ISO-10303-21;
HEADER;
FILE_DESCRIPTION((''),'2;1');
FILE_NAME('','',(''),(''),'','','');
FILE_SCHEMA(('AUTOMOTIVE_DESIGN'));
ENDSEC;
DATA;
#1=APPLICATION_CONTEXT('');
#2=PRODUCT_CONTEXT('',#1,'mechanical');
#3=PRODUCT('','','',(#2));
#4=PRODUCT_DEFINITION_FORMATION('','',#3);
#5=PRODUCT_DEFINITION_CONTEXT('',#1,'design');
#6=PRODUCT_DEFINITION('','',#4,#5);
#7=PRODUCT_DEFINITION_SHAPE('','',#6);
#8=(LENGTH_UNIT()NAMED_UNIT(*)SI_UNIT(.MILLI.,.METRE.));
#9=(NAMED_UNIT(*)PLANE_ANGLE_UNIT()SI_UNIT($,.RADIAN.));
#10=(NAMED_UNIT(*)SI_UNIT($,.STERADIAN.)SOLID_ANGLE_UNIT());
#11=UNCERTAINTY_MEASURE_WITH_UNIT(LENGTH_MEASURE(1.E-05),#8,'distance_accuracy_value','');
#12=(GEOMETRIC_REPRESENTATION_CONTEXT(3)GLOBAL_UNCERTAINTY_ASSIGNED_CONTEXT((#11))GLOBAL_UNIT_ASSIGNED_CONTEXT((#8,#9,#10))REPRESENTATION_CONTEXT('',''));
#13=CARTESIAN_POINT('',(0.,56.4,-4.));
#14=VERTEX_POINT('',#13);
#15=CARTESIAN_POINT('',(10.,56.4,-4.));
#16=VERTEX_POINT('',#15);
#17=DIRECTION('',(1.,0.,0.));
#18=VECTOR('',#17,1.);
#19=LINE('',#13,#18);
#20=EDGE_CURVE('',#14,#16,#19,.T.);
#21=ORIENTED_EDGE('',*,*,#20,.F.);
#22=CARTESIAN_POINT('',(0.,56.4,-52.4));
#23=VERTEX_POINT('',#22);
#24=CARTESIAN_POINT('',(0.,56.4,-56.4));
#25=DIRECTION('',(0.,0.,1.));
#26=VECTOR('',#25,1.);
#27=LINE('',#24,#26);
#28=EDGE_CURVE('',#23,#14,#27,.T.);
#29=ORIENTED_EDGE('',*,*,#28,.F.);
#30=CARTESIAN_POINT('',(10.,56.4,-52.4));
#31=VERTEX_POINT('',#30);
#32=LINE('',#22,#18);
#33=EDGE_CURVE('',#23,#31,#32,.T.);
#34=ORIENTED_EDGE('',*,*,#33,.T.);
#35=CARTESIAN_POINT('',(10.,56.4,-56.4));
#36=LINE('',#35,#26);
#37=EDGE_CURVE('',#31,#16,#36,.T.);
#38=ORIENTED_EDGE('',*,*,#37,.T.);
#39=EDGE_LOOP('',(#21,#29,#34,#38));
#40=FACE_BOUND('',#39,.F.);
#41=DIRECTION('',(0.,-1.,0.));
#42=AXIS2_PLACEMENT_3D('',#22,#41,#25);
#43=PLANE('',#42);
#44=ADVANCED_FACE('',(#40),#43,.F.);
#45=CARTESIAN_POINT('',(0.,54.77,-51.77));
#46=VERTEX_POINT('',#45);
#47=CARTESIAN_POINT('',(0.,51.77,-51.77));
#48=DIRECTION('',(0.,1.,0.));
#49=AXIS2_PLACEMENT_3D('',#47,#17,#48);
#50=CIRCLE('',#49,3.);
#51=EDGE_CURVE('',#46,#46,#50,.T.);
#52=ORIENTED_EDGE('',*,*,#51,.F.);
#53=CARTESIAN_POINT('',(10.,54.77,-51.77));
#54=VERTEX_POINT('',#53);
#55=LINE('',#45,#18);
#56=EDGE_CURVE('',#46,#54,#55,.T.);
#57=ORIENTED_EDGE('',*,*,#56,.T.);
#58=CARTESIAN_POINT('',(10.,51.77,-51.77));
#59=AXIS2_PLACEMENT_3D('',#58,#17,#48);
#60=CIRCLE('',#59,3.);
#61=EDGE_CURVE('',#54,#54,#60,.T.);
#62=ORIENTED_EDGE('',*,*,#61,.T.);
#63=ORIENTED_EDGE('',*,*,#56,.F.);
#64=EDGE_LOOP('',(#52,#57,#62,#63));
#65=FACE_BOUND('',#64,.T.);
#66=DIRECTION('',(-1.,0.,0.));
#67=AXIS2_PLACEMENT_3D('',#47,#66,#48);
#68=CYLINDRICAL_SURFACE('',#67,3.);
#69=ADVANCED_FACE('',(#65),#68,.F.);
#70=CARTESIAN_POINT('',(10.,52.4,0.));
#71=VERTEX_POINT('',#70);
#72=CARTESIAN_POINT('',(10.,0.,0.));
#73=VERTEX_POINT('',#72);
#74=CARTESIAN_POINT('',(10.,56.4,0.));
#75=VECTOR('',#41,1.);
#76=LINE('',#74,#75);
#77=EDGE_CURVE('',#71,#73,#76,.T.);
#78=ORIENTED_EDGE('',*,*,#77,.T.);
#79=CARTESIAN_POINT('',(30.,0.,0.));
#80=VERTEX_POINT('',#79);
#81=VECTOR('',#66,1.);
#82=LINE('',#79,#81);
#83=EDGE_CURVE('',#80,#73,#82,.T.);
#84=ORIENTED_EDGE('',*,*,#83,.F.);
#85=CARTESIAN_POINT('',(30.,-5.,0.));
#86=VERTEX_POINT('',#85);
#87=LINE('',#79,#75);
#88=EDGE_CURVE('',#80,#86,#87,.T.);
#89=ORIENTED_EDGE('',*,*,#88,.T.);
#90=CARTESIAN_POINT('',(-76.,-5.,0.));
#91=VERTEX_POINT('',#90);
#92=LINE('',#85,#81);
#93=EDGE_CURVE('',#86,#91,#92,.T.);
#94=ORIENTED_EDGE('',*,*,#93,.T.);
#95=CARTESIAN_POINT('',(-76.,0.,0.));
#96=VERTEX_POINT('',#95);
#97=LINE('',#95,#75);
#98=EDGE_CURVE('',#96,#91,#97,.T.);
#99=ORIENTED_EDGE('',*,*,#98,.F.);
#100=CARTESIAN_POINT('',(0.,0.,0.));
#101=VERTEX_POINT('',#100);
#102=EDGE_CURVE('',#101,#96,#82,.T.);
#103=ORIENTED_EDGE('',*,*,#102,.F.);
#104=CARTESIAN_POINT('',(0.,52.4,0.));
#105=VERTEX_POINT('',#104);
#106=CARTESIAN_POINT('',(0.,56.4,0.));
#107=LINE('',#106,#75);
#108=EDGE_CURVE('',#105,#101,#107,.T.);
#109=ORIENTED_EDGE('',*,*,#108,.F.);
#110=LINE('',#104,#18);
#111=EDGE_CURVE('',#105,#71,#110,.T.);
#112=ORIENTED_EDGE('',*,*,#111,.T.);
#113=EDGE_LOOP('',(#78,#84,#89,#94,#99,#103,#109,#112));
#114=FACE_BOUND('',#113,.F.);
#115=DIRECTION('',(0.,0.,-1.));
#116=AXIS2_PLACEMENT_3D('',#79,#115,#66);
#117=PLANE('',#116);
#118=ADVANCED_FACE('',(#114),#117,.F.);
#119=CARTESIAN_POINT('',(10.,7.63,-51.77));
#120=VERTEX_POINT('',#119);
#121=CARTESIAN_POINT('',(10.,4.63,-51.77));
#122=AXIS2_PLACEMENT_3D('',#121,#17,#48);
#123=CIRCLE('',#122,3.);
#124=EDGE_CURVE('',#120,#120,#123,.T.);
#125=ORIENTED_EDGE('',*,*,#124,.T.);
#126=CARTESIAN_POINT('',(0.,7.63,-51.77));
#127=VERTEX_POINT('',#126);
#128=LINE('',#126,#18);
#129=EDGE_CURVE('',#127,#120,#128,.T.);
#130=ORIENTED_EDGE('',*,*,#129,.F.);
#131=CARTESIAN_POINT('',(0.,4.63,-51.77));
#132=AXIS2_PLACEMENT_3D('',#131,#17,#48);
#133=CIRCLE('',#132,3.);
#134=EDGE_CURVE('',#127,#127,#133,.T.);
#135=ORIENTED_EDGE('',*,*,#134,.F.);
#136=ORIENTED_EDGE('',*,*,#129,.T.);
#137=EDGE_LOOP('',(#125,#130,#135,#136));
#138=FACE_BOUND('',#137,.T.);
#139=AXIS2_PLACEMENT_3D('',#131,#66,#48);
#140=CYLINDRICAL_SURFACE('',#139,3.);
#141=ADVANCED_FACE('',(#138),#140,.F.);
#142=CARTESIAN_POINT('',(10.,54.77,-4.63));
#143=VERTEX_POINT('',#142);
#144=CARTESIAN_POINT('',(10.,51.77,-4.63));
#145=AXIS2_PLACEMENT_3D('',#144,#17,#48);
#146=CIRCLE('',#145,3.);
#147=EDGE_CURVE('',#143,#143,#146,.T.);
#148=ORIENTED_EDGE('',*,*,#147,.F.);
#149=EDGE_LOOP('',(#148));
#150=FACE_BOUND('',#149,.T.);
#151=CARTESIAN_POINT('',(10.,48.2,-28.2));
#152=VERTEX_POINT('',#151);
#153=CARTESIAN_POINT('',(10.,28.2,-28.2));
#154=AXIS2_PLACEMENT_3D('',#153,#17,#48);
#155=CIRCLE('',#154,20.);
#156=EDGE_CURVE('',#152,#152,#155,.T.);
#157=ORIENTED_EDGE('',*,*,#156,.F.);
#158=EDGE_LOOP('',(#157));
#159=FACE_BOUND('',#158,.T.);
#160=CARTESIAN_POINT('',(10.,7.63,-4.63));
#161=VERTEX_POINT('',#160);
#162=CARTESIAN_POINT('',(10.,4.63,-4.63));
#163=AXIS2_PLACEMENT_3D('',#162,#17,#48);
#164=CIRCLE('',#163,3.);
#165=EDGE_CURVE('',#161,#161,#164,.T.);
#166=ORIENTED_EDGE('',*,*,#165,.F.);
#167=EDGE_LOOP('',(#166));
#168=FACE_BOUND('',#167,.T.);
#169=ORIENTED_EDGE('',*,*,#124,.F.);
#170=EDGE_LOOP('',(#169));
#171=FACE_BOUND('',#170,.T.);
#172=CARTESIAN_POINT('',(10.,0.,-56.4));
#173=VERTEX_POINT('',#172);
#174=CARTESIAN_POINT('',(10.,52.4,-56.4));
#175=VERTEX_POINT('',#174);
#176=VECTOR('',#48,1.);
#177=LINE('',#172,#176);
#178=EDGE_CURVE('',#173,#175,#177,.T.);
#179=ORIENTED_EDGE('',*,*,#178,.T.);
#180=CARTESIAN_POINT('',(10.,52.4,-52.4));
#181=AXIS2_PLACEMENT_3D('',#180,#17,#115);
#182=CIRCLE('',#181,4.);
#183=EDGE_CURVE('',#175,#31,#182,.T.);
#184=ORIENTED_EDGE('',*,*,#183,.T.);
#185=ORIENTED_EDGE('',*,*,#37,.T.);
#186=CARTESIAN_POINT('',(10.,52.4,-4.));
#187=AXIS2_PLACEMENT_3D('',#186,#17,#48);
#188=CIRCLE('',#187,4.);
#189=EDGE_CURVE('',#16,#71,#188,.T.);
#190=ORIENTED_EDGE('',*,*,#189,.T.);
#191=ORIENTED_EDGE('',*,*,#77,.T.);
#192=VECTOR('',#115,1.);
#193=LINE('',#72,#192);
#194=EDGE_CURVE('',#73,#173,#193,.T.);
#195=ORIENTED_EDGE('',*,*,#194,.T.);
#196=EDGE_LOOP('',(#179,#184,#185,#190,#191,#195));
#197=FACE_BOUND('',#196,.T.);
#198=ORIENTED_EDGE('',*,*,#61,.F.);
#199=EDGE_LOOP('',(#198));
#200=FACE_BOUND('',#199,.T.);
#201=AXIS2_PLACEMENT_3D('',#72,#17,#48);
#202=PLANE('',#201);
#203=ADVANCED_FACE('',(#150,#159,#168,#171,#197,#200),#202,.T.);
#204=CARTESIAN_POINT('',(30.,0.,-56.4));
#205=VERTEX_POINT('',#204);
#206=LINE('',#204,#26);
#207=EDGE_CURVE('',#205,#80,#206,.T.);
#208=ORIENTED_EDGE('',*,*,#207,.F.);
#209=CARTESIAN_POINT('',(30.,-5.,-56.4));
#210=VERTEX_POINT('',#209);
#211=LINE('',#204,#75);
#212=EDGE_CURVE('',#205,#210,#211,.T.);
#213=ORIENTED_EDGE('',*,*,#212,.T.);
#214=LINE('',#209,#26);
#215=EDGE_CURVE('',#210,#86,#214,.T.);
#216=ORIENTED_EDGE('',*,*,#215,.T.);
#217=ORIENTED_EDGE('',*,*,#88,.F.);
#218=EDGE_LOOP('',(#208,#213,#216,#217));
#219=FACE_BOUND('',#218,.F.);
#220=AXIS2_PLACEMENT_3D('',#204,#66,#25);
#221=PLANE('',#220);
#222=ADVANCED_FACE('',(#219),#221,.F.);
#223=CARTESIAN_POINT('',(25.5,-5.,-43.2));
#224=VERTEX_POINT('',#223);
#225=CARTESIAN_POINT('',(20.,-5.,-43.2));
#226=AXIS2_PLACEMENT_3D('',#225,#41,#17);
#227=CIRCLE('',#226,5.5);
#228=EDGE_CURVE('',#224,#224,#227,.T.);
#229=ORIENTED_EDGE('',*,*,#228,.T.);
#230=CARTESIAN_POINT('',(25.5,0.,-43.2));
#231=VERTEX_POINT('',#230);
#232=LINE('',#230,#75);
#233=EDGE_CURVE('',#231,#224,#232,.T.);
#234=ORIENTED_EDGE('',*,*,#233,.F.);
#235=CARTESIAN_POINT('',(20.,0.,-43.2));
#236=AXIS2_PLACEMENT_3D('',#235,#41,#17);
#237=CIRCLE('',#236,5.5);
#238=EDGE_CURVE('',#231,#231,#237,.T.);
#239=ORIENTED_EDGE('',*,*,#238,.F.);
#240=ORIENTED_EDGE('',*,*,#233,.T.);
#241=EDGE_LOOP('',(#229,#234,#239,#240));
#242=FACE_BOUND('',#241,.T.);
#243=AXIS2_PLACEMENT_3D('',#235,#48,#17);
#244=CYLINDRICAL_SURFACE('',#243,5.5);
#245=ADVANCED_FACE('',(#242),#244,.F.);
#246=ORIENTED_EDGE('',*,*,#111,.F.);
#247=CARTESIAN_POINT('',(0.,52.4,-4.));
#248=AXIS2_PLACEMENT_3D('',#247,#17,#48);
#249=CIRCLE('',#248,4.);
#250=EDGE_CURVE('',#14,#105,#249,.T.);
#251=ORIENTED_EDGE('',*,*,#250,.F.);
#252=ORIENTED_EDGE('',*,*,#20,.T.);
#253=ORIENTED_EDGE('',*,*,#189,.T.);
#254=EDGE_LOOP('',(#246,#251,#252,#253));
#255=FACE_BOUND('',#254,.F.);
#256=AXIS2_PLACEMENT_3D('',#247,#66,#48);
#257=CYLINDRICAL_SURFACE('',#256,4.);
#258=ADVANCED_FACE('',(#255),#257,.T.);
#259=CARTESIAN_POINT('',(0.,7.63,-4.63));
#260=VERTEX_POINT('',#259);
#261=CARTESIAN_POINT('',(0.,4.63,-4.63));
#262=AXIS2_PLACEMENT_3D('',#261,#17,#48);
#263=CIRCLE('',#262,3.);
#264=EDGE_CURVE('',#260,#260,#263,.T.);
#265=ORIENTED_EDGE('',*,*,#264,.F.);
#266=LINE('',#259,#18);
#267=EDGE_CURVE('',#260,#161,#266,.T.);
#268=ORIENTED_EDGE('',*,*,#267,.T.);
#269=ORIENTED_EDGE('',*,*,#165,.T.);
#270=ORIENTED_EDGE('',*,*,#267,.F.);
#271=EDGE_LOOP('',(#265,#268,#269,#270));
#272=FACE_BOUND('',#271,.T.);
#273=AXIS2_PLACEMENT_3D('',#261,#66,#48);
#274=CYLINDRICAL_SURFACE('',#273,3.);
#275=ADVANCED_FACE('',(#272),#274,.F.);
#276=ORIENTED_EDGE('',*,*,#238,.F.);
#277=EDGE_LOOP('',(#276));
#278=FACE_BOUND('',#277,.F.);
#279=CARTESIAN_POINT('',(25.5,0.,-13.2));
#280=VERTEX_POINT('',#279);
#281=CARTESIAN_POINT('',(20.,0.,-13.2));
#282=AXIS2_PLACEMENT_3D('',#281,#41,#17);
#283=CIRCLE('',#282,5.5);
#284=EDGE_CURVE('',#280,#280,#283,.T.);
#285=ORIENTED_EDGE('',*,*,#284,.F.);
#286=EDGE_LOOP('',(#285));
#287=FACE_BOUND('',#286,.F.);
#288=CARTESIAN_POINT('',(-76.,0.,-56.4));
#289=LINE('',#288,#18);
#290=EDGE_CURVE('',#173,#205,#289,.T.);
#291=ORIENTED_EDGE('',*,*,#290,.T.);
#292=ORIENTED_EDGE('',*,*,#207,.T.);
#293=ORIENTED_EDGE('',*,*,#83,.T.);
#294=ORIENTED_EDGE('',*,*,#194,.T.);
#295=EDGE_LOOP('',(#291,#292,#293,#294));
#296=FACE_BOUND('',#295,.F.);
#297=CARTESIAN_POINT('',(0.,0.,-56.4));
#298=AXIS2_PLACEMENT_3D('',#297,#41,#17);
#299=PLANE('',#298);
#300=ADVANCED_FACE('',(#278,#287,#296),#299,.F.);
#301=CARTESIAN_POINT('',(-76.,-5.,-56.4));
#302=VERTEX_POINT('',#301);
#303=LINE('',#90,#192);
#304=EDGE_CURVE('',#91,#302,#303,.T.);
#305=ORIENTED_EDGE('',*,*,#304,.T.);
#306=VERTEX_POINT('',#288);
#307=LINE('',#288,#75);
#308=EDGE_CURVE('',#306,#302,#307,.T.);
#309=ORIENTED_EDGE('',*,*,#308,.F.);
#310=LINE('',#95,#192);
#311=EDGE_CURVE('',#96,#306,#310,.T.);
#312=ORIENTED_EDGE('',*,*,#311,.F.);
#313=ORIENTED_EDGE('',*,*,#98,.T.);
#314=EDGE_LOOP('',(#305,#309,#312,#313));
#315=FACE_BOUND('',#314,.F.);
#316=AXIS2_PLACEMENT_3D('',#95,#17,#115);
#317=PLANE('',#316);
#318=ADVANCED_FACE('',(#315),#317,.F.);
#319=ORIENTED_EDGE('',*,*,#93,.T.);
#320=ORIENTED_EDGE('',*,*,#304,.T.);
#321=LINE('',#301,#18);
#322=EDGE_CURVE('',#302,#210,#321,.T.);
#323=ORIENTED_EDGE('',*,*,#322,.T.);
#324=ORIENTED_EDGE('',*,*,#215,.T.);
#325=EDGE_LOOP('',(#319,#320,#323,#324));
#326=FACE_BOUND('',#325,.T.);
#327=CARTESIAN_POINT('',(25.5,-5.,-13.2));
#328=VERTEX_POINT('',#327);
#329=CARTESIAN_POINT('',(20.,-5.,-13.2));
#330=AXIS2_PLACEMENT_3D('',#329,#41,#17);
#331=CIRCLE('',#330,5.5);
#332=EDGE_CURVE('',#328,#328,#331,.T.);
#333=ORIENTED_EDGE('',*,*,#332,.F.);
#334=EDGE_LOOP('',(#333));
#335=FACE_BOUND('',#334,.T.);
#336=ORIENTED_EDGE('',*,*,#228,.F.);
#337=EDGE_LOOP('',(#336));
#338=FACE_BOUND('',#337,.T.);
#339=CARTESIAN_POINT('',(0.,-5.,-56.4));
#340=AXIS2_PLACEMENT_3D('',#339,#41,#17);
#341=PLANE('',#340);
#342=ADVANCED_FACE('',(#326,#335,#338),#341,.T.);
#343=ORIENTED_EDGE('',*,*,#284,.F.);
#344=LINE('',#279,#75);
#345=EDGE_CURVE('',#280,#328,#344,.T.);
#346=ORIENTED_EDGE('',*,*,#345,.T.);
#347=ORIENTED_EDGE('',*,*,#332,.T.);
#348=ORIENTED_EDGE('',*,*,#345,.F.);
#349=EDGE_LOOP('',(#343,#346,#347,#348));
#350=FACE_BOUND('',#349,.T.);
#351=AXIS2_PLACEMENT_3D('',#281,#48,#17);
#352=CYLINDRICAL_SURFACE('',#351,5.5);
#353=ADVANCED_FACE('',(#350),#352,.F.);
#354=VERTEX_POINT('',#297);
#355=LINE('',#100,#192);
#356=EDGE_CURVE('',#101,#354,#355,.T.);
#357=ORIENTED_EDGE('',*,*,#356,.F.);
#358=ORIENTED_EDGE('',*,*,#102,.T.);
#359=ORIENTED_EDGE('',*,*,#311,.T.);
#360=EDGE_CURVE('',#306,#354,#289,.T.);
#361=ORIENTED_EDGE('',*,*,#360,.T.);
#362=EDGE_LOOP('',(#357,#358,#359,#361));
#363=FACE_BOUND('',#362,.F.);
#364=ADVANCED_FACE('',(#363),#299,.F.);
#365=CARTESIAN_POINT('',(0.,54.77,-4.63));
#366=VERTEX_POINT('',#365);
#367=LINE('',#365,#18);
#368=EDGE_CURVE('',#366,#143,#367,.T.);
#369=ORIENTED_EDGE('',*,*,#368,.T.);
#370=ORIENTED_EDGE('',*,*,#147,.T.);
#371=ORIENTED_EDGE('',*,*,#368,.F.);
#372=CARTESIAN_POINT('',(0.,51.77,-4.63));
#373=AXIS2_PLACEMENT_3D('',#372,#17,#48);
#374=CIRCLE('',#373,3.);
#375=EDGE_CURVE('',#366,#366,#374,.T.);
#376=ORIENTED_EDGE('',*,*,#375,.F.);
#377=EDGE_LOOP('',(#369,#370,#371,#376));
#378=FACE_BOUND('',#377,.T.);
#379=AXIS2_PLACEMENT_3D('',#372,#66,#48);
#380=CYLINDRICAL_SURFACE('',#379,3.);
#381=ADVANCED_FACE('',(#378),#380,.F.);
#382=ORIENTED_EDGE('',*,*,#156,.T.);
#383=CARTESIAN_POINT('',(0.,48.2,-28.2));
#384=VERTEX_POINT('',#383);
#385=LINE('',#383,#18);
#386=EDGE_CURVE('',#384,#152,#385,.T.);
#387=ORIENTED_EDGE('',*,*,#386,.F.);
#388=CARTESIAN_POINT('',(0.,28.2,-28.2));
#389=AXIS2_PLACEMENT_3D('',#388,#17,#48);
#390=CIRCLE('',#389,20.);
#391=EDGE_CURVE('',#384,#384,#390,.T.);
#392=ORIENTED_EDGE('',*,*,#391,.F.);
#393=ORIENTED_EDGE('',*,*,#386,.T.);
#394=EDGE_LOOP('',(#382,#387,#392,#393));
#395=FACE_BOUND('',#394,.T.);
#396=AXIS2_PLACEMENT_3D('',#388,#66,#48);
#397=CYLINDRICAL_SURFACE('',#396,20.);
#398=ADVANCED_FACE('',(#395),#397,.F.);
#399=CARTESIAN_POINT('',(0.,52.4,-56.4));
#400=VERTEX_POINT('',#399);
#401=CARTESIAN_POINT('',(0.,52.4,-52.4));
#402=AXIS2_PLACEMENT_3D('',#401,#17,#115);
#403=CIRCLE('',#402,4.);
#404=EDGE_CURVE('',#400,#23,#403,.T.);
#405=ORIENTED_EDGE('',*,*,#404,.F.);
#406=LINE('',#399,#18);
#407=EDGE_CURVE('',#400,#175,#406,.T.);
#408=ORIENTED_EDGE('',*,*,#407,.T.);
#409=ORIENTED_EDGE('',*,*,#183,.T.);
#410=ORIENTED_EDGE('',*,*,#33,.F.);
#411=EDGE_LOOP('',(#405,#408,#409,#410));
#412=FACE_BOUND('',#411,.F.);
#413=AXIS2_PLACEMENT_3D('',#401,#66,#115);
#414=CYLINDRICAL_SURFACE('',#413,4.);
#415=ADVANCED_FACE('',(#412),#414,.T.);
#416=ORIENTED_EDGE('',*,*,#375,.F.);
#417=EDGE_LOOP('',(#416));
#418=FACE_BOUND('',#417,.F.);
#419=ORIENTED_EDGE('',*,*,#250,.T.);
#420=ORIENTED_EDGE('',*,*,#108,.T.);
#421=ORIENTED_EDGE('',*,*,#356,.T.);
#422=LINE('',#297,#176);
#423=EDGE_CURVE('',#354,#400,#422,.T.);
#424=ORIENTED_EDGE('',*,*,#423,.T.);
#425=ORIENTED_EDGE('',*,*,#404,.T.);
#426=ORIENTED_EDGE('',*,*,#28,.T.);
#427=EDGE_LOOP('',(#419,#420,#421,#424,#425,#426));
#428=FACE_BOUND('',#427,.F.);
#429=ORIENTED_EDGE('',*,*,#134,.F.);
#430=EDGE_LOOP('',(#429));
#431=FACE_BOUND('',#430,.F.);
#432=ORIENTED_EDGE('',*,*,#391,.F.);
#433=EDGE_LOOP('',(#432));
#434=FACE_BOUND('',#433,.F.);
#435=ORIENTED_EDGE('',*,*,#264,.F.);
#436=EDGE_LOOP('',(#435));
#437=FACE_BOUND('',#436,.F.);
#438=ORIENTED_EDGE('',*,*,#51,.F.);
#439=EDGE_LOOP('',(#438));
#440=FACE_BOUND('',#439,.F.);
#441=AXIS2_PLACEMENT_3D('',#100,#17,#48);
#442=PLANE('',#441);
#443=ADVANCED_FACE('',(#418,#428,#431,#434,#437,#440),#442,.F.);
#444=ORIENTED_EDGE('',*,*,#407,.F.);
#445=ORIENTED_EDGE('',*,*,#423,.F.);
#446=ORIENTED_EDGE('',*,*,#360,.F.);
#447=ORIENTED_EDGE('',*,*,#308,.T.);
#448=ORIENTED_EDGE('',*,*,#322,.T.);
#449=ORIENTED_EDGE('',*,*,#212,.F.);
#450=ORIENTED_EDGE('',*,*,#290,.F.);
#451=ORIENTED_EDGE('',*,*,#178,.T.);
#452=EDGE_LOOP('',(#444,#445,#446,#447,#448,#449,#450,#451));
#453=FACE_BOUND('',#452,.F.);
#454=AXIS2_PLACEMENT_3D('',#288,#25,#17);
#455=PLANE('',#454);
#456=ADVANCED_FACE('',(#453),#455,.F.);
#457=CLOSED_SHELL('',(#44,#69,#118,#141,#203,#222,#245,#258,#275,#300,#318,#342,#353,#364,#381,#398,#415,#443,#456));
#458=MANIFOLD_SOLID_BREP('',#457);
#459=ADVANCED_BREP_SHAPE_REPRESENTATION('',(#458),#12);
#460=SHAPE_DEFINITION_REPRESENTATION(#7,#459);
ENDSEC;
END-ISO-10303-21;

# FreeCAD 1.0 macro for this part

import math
import FreeCAD as App
import Part
import Sketcher
Q = App.Units.Quantity

doc = App.newDocument("Part")
body = doc.addObject("PartDesign::Body", "Body")

# Sketch on YZ plane
sketch1 = doc.addObject("Sketcher::SketchObject", "Sketch")
body.addObject(sketch1)
sketch1.AttachmentSupport = (doc.YZ_Plane, [""])
sketch1.MapMode = "FlatFace"
sketch1.addGeometry([
    Part.ArcOfCircle(Part.Circle(App.Vector(52.4, -4, 0), App.Vector(0, 0, 1), 4), math.radians(0), math.radians(90)),  # 0
    Part.LineSegment(App.Vector(52.4, 0, 0), App.Vector(0, 0, 0)),  # 1
    Part.LineSegment(App.Vector(0, 0, 0), App.Vector(0, -56.4, 0)),  # 2
    Part.LineSegment(App.Vector(0, -56.4, 0), App.Vector(52.4, -56.4, 0)),  # 3
    Part.ArcOfCircle(Part.Circle(App.Vector(52.4, -52.4, 0), App.Vector(0, 0, 1), 4), math.radians(-90), math.radians(0)),  # 4
    Part.LineSegment(App.Vector(56.4, -52.4, 0), App.Vector(56.4, -4, 0)),  # 5
    Part.Circle(App.Vector(4.6, -51.8, 0), App.Vector(0, 0, 1), 3),  # 6
    Part.Circle(App.Vector(51.8, -51.8, 0), App.Vector(0, 0, 1), 3),  # 7
    Part.Circle(App.Vector(4.6, -4.6, 0), App.Vector(0, 0, 1), 3),  # 8
    Part.Circle(App.Vector(28.2, -28.2, 0), App.Vector(0, 0, 1), 20),  # 9
    Part.Circle(App.Vector(51.8, -4.6, 0), App.Vector(0, 0, 1), 3),  # 10
], False)
sketch1.addConstraint([
    Sketcher.Constraint("Tangent", 0, 2, 1, 1),
    Sketcher.Constraint("Coincident", 1, 2, 2, 1),
    Sketcher.Constraint("Coincident", 2, 2, 3, 1),
    Sketcher.Constraint("Tangent", 3, 2, 4, 1),
    Sketcher.Constraint("Tangent", 4, 2, 5, 1),
    Sketcher.Constraint("Tangent", 5, 2, 0, 1),
    Sketcher.Constraint("Horizontal", 1),
    Sketcher.Constraint("Vertical", 2),
    Sketcher.Constraint("Horizontal", 3),
    Sketcher.Constraint("Vertical", 5),
    Sketcher.Constraint("Coincident", 1, 2, -1, 1),
    Sketcher.Constraint("Equal", 0, 4),
    Sketcher.Constraint("Equal", 6, 7),
    Sketcher.Constraint("Equal", 7, 8),
    Sketcher.Constraint("Equal", 8, 10),
    Sketcher.Constraint("Horizontal", 6, 3, 7, 3),
    Sketcher.Constraint("Horizontal", 8, 3, 10, 3),
    Sketcher.Constraint("Vertical", 6, 3, 8, 3),
    Sketcher.Constraint("Vertical", 7, 3, 10, 3),
    Sketcher.Constraint("Diameter", 6, Q("6 mm")),
    Sketcher.Constraint("Diameter", 9, Q("40 mm")),
    Sketcher.Constraint("Radius", 0, Q("4 mm")),
    Sketcher.Constraint("DistanceY", 2, 2, 2, 1, Q("56.4 mm")),
    Sketcher.Constraint("DistanceX", -1, 1, 4, 2, Q("56.4 mm")),
    Sketcher.Constraint("DistanceX", 6, 3, 7, 3, Q("47.14 mm")),
    Sketcher.Constraint("DistanceY", 6, 3, 8, 3, Q("47.14 mm")),
    Sketcher.Constraint("DistanceX", -1, 1, 9, 3, Q("28.2 mm")),
    Sketcher.Constraint("DistanceY", 9, 3, -1, 1, Q("28.2 mm")),
    Sketcher.Constraint("DistanceX", -1, 1, 6, 3, Q("4.63 mm")),
    Sketcher.Constraint("DistanceY", 6, 3, -1, 1, Q("51.77 mm")),
])
pad1 = doc.addObject("PartDesign::Pad", "Pad")
body.addObject(pad1)
pad1.Profile = sketch1
pad1.Length = 10

# Sketch on XZ plane
sketch2 = doc.addObject("Sketcher::SketchObject", "Sketch001")
body.addObject(sketch2)
sketch2.AttachmentSupport = (doc.XZ_Plane, [""])
sketch2.MapMode = "FlatFace"
sketch2.addGeometry([
    Part.LineSegment(App.Vector(-76, 0, 0), App.Vector(-76, -56, 0)),  # 0
    Part.LineSegment(App.Vector(-76, -56, 0), App.Vector(30, -56, 0)),  # 1
    Part.LineSegment(App.Vector(30, -56, 0), App.Vector(30, 0, 0)),  # 2
    Part.LineSegment(App.Vector(30, 0, 0), App.Vector(-76, 0, 0)),  # 3
    Part.Circle(App.Vector(20, -43, 0), App.Vector(0, 0, 1), 6),  # 4
    Part.Circle(App.Vector(20, -13, 0), App.Vector(0, 0, 1), 6),  # 5
], False)
sketch2.addConstraint([
    Sketcher.Constraint("Coincident", 0, 2, 1, 1),
    Sketcher.Constraint("Coincident", 1, 2, 2, 1),
    Sketcher.Constraint("Coincident", 2, 2, 3, 1),
    Sketcher.Constraint("Coincident", 3, 2, 0, 1),
    Sketcher.Constraint("Vertical", 0),
    Sketcher.Constraint("Horizontal", 1),
    Sketcher.Constraint("Vertical", 2),
    Sketcher.Constraint("Horizontal", 3),
    Sketcher.Constraint("Equal", 4, 5),
    Sketcher.Constraint("PointOnObject", 2, 2, -1),
    Sketcher.Constraint("Vertical", 4, 3, 5, 3),
    Sketcher.Constraint("Diameter", 4, Q("11 mm")),
    Sketcher.Constraint("DistanceX", 0, 2, -1, 1, Q("76 mm")),
    Sketcher.Constraint("DistanceX", -1, 1, 1, 2, Q("30 mm")),
    Sketcher.Constraint("DistanceY", 4, 3, 5, 3, Q("30 mm")),
    Sketcher.Constraint("DistanceY", 0, 2, 0, 1, Q("56.4 mm")),
    Sketcher.Constraint("DistanceX", -1, 1, 4, 3, Q("20 mm")),
    Sketcher.Constraint("DistanceY", 4, 3, -1, 1, Q("43.2 mm")),
])
pad2 = doc.addObject("PartDesign::Pad", "Pad001")
body.addObject(pad2)
pad2.Profile = sketch2
pad2.Length = 5

doc.recompute()
